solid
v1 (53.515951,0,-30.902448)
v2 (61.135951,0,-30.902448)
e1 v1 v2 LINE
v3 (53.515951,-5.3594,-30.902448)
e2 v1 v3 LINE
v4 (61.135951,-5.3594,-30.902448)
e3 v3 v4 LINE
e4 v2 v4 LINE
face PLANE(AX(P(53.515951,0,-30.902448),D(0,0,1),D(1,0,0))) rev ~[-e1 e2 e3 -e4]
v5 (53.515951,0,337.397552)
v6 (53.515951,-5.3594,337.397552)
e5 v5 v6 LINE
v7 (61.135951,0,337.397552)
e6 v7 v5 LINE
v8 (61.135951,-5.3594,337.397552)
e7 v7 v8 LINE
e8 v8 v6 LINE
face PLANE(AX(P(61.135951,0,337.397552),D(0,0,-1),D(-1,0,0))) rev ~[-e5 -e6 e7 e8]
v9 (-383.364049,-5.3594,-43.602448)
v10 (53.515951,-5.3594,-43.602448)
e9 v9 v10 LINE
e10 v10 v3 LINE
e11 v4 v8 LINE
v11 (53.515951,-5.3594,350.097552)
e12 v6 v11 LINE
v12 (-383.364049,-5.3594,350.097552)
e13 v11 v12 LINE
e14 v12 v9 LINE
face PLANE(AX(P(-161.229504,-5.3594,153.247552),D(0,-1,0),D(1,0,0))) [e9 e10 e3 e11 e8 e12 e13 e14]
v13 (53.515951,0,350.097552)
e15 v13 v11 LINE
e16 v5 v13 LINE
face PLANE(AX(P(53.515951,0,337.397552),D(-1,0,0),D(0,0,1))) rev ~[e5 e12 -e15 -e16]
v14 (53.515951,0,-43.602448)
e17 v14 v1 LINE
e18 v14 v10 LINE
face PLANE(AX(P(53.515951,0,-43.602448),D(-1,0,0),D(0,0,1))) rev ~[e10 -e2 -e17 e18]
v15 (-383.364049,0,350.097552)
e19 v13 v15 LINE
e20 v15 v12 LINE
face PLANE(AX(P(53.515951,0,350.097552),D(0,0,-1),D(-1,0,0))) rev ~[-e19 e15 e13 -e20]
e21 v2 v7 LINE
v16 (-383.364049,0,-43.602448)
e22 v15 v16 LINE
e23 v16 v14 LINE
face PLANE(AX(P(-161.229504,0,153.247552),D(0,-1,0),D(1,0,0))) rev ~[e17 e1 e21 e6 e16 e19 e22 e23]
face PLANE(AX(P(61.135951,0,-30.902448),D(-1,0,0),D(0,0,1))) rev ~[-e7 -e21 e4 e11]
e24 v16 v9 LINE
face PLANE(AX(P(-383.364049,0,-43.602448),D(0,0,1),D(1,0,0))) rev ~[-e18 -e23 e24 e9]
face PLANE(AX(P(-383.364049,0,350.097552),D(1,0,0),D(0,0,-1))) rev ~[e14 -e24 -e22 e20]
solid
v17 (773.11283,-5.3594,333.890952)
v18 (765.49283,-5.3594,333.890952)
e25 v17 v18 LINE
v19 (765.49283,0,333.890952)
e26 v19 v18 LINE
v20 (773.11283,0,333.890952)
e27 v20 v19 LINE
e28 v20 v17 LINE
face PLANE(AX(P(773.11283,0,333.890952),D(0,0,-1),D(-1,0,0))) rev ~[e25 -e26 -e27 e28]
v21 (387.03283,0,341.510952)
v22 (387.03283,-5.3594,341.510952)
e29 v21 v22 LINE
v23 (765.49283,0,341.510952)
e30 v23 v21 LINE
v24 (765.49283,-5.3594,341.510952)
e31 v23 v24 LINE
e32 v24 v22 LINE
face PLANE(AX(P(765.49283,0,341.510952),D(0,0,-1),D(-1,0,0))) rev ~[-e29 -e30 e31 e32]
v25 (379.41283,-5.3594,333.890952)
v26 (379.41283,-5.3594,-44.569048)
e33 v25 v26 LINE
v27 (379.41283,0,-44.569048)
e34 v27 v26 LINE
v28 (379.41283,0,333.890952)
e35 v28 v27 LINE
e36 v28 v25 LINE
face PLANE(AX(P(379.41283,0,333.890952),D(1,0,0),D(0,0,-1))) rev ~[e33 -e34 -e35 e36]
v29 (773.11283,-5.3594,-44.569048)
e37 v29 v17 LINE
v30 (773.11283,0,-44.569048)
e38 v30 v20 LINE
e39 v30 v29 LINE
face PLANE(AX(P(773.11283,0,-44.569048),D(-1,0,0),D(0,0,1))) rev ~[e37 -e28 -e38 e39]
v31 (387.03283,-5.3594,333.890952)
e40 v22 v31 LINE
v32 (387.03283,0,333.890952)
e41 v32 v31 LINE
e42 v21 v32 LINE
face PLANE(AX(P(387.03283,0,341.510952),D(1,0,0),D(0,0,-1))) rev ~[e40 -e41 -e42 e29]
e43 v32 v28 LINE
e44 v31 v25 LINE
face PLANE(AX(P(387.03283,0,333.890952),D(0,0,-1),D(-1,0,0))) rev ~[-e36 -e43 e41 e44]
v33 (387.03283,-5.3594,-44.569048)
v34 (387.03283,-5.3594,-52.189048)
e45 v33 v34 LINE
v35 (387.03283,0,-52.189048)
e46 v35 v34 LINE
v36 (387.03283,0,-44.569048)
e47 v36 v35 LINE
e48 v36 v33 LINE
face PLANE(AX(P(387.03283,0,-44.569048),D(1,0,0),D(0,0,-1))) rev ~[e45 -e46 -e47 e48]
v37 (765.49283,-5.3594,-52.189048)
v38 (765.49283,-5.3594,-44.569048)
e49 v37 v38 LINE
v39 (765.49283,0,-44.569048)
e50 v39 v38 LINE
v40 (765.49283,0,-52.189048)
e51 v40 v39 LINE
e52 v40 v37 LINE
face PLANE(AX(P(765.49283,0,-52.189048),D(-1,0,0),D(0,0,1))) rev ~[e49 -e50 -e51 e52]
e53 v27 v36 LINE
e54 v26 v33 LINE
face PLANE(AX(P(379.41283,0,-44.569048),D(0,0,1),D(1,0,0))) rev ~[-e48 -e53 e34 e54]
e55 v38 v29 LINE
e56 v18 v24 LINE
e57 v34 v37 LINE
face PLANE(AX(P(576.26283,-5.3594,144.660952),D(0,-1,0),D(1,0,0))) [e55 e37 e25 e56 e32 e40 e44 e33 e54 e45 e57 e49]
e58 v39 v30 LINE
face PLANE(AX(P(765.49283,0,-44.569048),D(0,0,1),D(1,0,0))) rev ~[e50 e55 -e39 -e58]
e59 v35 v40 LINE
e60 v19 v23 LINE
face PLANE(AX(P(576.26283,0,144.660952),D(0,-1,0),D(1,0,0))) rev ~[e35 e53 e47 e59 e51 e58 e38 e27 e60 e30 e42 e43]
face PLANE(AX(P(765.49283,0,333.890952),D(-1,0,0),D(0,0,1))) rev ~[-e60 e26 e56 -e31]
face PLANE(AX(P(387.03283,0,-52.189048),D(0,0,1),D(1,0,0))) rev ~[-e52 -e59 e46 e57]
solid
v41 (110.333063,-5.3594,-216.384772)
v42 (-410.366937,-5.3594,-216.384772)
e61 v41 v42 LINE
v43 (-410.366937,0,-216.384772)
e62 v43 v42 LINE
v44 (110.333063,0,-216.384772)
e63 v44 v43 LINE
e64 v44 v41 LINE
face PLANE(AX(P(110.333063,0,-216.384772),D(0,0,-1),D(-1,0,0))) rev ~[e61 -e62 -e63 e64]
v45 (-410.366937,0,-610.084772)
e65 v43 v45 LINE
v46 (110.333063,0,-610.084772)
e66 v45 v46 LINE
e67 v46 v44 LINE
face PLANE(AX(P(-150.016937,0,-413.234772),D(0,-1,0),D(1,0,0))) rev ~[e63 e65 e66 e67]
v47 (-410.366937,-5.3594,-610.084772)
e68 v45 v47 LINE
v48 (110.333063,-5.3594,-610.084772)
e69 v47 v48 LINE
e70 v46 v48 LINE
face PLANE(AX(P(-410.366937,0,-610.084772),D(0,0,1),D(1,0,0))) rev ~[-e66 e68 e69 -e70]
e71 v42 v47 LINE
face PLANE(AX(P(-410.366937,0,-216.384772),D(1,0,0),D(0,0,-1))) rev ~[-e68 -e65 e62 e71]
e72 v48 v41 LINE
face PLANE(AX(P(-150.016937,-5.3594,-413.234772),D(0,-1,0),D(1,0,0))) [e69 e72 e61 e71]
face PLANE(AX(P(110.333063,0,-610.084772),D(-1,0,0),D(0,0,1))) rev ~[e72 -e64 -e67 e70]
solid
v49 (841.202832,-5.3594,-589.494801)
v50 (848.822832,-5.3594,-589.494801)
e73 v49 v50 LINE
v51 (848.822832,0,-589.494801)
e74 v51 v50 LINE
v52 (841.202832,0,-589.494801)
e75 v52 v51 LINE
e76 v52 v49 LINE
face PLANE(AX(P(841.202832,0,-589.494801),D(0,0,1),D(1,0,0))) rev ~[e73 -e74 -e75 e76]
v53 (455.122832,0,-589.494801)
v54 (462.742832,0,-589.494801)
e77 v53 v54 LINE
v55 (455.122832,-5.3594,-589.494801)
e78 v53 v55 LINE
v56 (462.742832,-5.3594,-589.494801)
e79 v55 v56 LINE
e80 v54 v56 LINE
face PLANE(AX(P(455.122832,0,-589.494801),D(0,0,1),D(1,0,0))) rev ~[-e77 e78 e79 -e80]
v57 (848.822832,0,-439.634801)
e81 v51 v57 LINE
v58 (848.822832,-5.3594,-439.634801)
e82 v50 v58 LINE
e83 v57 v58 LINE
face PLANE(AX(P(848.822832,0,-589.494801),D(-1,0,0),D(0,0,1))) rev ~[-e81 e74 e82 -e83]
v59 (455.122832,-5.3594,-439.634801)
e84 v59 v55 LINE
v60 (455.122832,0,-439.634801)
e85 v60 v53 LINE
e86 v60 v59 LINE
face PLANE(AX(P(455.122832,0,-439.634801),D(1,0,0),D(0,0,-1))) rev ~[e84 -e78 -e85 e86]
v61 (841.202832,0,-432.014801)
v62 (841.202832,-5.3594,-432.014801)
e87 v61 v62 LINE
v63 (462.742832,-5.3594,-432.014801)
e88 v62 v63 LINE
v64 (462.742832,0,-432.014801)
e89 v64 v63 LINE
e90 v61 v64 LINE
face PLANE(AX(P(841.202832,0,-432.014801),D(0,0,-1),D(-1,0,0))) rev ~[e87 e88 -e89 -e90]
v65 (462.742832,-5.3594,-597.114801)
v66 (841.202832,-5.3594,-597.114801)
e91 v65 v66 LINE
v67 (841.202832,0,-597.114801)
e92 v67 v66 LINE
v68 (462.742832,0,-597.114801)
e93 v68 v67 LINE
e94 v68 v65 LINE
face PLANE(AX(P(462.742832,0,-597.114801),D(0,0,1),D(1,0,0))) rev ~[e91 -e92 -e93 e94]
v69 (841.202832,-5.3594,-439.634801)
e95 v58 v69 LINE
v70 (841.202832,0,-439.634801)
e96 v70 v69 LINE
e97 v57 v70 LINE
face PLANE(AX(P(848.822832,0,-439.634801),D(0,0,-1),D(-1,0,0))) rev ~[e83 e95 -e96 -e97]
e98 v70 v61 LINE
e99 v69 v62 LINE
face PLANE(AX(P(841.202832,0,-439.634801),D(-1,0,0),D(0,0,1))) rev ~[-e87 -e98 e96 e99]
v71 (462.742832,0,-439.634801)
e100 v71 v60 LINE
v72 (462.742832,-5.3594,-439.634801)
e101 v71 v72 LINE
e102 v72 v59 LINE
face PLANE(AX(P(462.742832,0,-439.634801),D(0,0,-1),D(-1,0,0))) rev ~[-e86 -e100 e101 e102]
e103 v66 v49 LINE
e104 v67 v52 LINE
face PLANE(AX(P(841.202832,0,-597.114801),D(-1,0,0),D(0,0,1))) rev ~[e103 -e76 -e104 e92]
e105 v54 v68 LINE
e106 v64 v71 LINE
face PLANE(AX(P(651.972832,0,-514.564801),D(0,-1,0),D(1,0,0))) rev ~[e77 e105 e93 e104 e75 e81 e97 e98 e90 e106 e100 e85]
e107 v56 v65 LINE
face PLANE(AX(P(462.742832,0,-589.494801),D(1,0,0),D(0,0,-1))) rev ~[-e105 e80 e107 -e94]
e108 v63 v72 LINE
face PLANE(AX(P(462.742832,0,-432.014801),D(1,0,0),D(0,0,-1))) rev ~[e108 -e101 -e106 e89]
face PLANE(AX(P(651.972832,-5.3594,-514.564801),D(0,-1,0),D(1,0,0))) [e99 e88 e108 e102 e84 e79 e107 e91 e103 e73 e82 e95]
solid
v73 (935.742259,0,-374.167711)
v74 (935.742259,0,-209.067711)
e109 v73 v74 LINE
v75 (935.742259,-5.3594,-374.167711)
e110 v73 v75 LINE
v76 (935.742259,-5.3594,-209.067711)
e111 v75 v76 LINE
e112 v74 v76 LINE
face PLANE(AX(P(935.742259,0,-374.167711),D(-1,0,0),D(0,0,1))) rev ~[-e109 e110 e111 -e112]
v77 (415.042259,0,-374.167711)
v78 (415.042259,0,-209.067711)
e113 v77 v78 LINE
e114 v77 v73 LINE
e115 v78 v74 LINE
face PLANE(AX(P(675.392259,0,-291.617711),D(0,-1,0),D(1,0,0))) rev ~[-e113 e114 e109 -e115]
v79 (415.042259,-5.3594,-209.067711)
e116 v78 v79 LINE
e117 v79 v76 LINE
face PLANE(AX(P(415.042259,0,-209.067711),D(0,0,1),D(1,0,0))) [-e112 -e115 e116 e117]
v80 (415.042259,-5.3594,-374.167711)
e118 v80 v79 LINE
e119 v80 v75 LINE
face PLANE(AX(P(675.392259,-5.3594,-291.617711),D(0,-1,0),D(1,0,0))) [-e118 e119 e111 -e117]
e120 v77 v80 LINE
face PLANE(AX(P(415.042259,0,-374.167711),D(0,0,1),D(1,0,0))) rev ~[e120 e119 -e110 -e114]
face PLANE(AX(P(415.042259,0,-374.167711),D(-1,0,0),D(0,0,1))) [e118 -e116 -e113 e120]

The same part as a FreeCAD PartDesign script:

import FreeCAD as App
import Part
import Sketcher
from FreeCAD import Vector
Q = App.Units.Quantity


def add_polygon(sketch, points):
    """Adds a closed chain of lines whose ends are joined by coincident constraints."""
    first, n = sketch.GeometryCount, len(points)
    for a, b in zip(points, points[1:] + points[:1]):
        sketch.addGeometry(Part.LineSegment(App.Vector(*a, 0), App.Vector(*b, 0)), False)
    for i in range(n):
        sketch.addConstraint(Sketcher.Constraint("Coincident", first + i, 2, first + (i + 1) % n, 1))

doc = App.newDocument("Part")
body = doc.addObject("PartDesign::Body", "Body")

sketch1 = body.newObject("Sketcher::SketchObject", "Sketch")
sketch1.AttachmentSupport = (doc.getObject("XZ_Plane"), [""])
sketch1.MapMode = "FlatFace"
add_polygon(sketch1, [(54, 350), (-383, 350), (-383, -44), (54, -44), (54, -31), (61, -31), (61, 337), (54, 337)])
sketch1.addConstraint([
    Sketcher.Constraint("Horizontal", 0),
    Sketcher.Constraint("Vertical", 1),
    Sketcher.Constraint("Horizontal", 2),
    Sketcher.Constraint("Vertical", 3),
    Sketcher.Constraint("Horizontal", 4),
    Sketcher.Constraint("Vertical", 5),
    Sketcher.Constraint("Horizontal", 6),
    Sketcher.Constraint("Vertical", 7),
    Sketcher.Constraint("Vertical", 3, 2, 6, 2),
    Sketcher.Constraint("Equal", 3, 7),
    Sketcher.Constraint("DistanceX", 0, 2, 0, 1, Q("17.2 in")),
    Sketcher.Constraint("DistanceX", 4, 1, 4, 2, Q("0.3 in")),
    Sketcher.Constraint("DistanceY", 1, 2, 1, 1, Q("15.5 in")),
    Sketcher.Constraint("DistanceY", 3, 1, 3, 2, Q("0.5 in")),
    Sketcher.Constraint("DistanceX", 0, 2, -1, 1, Q("383.364049 mm")),
    Sketcher.Constraint("DistanceY", -1, 1, 0, 2, Q("350.097552 mm")),
])
pad1 = body.newObject("PartDesign::Pad", "Pad")
pad1.Profile = sketch1
pad1.Length = Q("0.211 in")
body2 = doc.addObject("PartDesign::Body", "Body001")

sketch2 = body2.newObject("Sketcher::SketchObject", "Sketch001")
sketch2.AttachmentSupport = (doc.getObject("XZ_Plane001"), [""])
sketch2.MapMode = "FlatFace"
add_polygon(sketch2, [(765, 342), (387, 342), (387, 334), (379, 334), (379, -45), (387, -45), (387, -52), (765, -52), (765, -45), (773, -45), (773, 334), (765, 334)])
sketch2.addConstraint([
    Sketcher.Constraint("Horizontal", 0),
    Sketcher.Constraint("Vertical", 1),
    Sketcher.Constraint("Horizontal", 2),
    Sketcher.Constraint("Vertical", 3),
    Sketcher.Constraint("Horizontal", 4),
    Sketcher.Constraint("Vertical", 5),
    Sketcher.Constraint("Horizontal", 6),
    Sketcher.Constraint("Vertical", 7),
    Sketcher.Constraint("Horizontal", 8),
    Sketcher.Constraint("Vertical", 9),
    Sketcher.Constraint("Horizontal", 10),
    Sketcher.Constraint("Vertical", 11),
    Sketcher.Constraint("Horizontal", 4, 2, 7, 2),
    Sketcher.Constraint("Horizontal", 2, 2, 9, 2),
    Sketcher.Constraint("Vertical", 1, 2, 4, 2),
    Sketcher.Constraint("Vertical", 7, 2, 10, 2),
    Sketcher.Constraint("Equal", 4, 8),
    Sketcher.Constraint("Equal", 10, 1),
    Sketcher.Constraint("Equal", 6, 3),
    Sketcher.Constraint("Equal", 1, 5),
    Sketcher.Constraint("DistanceX", 0, 2, 0, 1, Q("14.9 in")),
    Sketcher.Constraint("DistanceX", 2, 2, 2, 1, Q("0.3 in")),
    Sketcher.Constraint("DistanceX", -1, 1, 0, 2, Q("387.03283 mm")),
    Sketcher.Constraint("DistanceY", -1, 1, 0, 2, Q("341.510952 mm")),
])
pad2 = body2.newObject("PartDesign::Pad", "Pad001")
pad2.Profile = sketch2
pad2.Length = Q("0.211 in")
body3 = doc.addObject("PartDesign::Body", "Body002")

sketch3 = body3.newObject("Sketcher::SketchObject", "Sketch002")
sketch3.AttachmentSupport = (doc.getObject("XZ_Plane002"), [""])
sketch3.MapMode = "FlatFace"
add_polygon(sketch3, [(-410, -216), (-410, -610), (110, -610), (110, -216)])
sketch3.addConstraint([
    Sketcher.Constraint("Vertical", 0),
    Sketcher.Constraint("Horizontal", 1),
    Sketcher.Constraint("Vertical", 2),
    Sketcher.Constraint("Horizontal", 3),
    Sketcher.Constraint("DistanceX", 1, 1, 1, 2, Q("20.5 in")),
    Sketcher.Constraint("DistanceY", 0, 2, 0, 1, Q("15.5 in")),
    Sketcher.Constraint("DistanceY", 0, 2, -1, 1, Q("610.084772 mm")),
    Sketcher.Constraint("DistanceX", 0, 2, -1, 1, Q("410.366937 mm")),
])
pad3 = body3.newObject("PartDesign::Pad", "Pad002")
pad3.Profile = sketch3
pad3.Length = Q("0.211 in")
body4 = doc.addObject("PartDesign::Body", "Body003")

sketch4 = body4.newObject("Sketcher::SketchObject", "Sketch003")
sketch4.AttachmentSupport = (doc.getObject("XZ_Plane003"), [""])
sketch4.MapMode = "FlatFace"
add_polygon(sketch4, [(841, -432), (463, -432), (463, -440), (455, -440), (455, -589), (463, -589), (463, -597), (841, -597), (841, -589), (849, -589), (849, -440), (841, -440)])
sketch4.addConstraint([
    Sketcher.Constraint("Horizontal", 0),
    Sketcher.Constraint("Vertical", 1),
    Sketcher.Constraint("Horizontal", 2),
    Sketcher.Constraint("Vertical", 3),
    Sketcher.Constraint("Horizontal", 4),
    Sketcher.Constraint("Vertical", 5),
    Sketcher.Constraint("Horizontal", 6),
    Sketcher.Constraint("Vertical", 7),
    Sketcher.Constraint("Horizontal", 8),
    Sketcher.Constraint("Vertical", 9),
    Sketcher.Constraint("Horizontal", 10),
    Sketcher.Constraint("Vertical", 11),
    Sketcher.Constraint("Horizontal", 4, 2, 7, 2),
    Sketcher.Constraint("Horizontal", 2, 2, 9, 2),
    Sketcher.Constraint("Vertical", 1, 2, 4, 2),
    Sketcher.Constraint("Vertical", 7, 2, 10, 2),
    Sketcher.Constraint("Equal", 4, 8),
    Sketcher.Constraint("Equal", 10, 1),
    Sketcher.Constraint("Equal", 1, 5),
    Sketcher.Constraint("DistanceX", 0, 2, 0, 1, Q("14.9 in")),
    Sketcher.Constraint("DistanceX", 2, 2, 2, 1, Q("0.3 in")),
    Sketcher.Constraint("DistanceY", 3, 2, 3, 1, Q("5.9 in")),
    Sketcher.Constraint("DistanceY", 0, 2, -1, 1, Q("432.014801 mm")),
    Sketcher.Constraint("DistanceX", -1, 1, 0, 2, Q("462.742832 mm")),
])
pad4 = body4.newObject("PartDesign::Pad", "Pad003")
pad4.Profile = sketch4
pad4.Length = Q("0.211 in")
body5 = doc.addObject("PartDesign::Body", "Body004")

sketch5 = body5.newObject("Sketcher::SketchObject", "Sketch004")
sketch5.AttachmentSupport = (doc.getObject("XZ_Plane004"), [""])
sketch5.MapMode = "FlatFace"
add_polygon(sketch5, [(415, -209), (415, -374), (936, -374), (936, -209)])
sketch5.addConstraint([
    Sketcher.Constraint("Vertical", 0),
    Sketcher.Constraint("Horizontal", 1),
    Sketcher.Constraint("Vertical", 2),
    Sketcher.Constraint("Horizontal", 3),
    Sketcher.Constraint("DistanceX", 1, 1, 1, 2, Q("20.5 in")),
    Sketcher.Constraint("DistanceY", 0, 2, 0, 1, Q("6.5 in")),
    Sketcher.Constraint("DistanceX", -1, 1, 0, 2, Q("415.042259 mm")),
    Sketcher.Constraint("DistanceY", 0, 2, -1, 1, Q("374.167711 mm")),
])
pad5 = body5.newObject("PartDesign::Pad", "Pad004")
pad5.Profile = sketch5
pad5.Length = Q("0.211 in")

doc.recompute()
